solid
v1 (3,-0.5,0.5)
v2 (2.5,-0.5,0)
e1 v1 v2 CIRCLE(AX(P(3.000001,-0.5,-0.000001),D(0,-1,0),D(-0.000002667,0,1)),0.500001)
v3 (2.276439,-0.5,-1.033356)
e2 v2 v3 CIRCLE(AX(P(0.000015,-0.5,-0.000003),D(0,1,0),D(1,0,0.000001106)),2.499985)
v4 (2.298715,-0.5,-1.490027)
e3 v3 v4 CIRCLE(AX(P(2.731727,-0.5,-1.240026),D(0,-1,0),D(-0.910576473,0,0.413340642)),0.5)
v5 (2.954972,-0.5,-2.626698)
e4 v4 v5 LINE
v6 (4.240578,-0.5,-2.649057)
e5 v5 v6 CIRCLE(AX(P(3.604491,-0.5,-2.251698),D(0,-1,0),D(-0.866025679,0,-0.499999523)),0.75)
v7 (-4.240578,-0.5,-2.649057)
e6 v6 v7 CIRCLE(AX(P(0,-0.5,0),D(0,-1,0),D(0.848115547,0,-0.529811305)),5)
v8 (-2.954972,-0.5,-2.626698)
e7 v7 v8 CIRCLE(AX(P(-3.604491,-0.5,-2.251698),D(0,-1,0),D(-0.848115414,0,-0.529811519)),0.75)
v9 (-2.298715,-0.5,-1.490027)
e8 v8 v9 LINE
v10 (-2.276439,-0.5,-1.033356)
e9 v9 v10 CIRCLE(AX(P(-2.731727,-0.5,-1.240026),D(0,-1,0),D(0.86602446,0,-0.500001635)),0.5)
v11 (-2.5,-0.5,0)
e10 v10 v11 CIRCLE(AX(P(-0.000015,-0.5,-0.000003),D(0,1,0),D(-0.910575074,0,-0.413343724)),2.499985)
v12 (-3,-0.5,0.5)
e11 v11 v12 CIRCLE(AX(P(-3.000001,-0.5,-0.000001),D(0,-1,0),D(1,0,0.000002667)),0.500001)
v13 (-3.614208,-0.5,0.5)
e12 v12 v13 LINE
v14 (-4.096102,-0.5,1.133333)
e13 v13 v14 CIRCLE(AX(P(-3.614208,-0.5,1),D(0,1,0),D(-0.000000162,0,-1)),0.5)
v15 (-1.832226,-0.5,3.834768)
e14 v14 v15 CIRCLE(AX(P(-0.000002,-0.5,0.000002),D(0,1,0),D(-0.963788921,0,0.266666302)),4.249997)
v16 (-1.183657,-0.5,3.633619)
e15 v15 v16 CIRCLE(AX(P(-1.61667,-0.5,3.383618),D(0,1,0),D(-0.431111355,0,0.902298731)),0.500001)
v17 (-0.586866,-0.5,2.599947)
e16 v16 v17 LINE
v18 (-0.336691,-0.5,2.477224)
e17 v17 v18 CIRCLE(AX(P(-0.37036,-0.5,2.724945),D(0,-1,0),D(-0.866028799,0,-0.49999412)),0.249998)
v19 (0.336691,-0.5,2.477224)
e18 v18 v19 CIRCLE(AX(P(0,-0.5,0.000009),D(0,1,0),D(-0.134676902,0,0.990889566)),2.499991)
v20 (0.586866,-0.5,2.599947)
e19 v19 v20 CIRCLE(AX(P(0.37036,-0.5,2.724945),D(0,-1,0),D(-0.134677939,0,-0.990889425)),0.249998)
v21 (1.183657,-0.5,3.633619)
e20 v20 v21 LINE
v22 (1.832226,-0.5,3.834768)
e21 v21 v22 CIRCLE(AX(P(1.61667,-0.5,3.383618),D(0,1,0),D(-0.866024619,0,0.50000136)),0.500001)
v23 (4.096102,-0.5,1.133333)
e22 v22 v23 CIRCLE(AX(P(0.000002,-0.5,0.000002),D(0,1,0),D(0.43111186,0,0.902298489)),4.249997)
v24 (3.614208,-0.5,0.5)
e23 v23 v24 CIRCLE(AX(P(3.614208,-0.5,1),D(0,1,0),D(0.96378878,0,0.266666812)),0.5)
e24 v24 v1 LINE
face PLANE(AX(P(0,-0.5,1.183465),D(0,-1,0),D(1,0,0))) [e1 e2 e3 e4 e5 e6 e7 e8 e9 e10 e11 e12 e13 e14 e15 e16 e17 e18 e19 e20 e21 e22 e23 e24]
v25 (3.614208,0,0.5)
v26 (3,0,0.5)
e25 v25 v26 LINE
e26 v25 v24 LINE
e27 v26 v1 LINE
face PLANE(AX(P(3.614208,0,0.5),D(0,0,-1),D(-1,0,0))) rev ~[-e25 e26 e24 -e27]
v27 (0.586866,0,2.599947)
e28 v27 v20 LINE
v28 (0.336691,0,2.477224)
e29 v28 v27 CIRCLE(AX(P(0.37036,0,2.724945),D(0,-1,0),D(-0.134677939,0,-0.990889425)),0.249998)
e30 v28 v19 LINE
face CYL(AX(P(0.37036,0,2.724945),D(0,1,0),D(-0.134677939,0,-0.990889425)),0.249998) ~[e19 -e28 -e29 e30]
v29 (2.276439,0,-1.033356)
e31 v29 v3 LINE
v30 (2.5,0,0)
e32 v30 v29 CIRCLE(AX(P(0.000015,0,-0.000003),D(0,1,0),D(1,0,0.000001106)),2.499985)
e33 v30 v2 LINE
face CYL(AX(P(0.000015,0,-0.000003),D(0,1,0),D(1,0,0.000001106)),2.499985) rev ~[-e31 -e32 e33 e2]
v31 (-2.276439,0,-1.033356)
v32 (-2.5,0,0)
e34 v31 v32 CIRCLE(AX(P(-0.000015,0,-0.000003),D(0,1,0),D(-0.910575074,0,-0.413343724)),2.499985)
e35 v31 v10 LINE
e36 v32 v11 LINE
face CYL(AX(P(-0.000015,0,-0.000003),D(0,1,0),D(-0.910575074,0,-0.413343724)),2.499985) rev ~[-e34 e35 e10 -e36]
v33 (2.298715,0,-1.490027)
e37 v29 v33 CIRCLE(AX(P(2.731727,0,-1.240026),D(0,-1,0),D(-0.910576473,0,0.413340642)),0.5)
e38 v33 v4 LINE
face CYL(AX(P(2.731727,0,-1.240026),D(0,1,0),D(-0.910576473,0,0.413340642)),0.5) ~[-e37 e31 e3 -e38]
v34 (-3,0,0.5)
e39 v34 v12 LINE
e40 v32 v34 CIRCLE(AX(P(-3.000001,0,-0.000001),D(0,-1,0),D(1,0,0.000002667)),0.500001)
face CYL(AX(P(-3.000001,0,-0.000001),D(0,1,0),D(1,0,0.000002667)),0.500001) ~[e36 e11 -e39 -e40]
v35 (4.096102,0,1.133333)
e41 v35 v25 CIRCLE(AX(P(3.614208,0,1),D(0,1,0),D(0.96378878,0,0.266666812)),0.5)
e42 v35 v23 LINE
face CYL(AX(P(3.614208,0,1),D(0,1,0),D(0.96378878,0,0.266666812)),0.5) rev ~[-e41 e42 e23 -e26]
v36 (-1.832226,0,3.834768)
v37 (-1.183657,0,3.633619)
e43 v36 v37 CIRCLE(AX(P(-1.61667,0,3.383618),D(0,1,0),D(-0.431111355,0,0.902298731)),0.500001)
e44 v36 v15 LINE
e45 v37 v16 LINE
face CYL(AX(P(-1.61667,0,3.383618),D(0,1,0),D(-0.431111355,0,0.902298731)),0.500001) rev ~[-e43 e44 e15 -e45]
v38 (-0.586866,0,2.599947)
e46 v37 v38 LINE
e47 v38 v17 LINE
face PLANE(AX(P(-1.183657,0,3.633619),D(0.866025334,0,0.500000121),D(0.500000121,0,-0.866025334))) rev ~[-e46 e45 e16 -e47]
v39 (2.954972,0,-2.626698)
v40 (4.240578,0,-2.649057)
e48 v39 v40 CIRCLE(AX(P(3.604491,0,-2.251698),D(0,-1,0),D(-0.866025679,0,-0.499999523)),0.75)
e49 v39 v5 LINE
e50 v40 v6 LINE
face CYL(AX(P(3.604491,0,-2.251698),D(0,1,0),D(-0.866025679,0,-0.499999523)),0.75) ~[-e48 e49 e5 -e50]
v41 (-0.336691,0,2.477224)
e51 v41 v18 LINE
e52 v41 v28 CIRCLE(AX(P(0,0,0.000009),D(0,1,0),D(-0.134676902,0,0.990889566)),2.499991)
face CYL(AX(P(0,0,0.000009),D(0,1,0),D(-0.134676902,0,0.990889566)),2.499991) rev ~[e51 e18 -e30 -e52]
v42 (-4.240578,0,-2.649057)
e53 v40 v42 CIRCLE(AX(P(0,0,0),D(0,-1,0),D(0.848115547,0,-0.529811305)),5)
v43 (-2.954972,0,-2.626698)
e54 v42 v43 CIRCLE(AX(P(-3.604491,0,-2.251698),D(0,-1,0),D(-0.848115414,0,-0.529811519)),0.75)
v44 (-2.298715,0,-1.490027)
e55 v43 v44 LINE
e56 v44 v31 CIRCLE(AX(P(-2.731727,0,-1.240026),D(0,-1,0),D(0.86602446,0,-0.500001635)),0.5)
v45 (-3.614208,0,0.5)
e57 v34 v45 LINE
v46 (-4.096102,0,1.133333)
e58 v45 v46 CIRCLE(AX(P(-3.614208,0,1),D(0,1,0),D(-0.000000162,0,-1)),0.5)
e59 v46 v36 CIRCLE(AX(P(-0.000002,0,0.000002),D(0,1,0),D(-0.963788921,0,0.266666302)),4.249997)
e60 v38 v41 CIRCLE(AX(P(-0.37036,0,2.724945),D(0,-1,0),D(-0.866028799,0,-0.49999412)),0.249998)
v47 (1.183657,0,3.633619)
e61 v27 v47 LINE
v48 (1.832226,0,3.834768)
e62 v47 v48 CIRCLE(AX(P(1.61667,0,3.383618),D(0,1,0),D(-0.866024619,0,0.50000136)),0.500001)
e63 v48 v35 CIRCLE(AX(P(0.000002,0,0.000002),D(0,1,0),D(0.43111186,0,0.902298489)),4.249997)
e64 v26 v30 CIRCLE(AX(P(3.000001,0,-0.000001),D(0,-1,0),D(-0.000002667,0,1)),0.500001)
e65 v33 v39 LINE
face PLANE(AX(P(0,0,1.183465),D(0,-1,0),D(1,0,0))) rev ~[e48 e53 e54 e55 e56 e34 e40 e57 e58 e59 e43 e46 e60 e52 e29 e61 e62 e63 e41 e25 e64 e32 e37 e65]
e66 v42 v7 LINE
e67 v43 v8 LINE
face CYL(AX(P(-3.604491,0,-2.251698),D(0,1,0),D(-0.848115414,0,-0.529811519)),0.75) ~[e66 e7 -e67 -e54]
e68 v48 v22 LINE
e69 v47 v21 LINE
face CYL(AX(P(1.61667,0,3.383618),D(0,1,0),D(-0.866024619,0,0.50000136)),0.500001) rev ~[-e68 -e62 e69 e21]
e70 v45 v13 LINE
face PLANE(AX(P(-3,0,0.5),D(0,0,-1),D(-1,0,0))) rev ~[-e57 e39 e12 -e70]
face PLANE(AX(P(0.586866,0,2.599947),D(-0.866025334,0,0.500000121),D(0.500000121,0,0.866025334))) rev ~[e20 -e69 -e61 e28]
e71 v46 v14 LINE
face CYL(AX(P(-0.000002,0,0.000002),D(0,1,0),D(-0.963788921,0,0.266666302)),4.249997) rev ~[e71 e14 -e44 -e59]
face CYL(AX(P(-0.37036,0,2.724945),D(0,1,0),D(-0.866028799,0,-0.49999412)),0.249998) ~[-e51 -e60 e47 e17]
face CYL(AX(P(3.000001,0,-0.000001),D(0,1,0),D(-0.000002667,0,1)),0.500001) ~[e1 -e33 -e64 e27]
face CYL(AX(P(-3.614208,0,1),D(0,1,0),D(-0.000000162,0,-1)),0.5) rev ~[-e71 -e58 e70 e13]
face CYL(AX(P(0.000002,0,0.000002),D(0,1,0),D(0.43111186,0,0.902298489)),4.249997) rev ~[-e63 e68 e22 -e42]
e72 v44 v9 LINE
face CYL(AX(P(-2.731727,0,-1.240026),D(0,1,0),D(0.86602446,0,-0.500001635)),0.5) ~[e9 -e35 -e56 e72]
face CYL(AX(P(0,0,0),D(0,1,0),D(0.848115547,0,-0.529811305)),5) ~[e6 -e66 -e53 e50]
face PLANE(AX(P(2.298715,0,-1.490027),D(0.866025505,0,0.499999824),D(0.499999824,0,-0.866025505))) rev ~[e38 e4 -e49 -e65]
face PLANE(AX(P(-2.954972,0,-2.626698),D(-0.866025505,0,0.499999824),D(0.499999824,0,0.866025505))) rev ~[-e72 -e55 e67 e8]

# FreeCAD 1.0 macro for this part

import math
import FreeCAD as App
import Part
import Sketcher

V = App.Vector
Q = App.Units.Quantity

doc = App.newDocument("Part")
params = doc.addObject("Spreadsheet::Sheet", "Params")
for row, (alias, value) in enumerate([
    ("sketch1_radius", "5 mm"),
    ("sketch1_radius2", "0.5 mm"),
    ("sketch1_radius3", "0.75 mm"),
    ("sketch1_radius4", "0.249998 mm"),
    ("pad1_length", "0.5 mm"),
], start=1):
    params.set(f"A{row}", alias)
    params.set(f"B{row}", "=" + value)
    params.setAlias(f"B{row}", alias)

body = doc.addObject("PartDesign::Body", "Body")

# Sketch on XZ plane
sketch1 = body.newObject("Sketcher::SketchObject", "Sketch")
sketch1.AttachmentSupport = (doc.getObject("XZ_Plane"), [""])
sketch1.MapMode = "FlatFace"
sketch1.addGeometry([
    Part.ArcOfCircle(Part.Circle(V(3.6, -2.25, 0), V(0, 0, 1), 0.75), math.radians(-150), math.radians(-32)),  # 0
    Part.ArcOfCircle(Part.Circle(V(0, 0, 0), V(0, 0, 1), 5), math.radians(-32), math.radians(212)),  # 1
    Part.ArcOfCircle(Part.Circle(V(-3.6, -2.25, 0), V(0, 0, 1), 0.75), math.radians(-148), math.radians(-30)),  # 2
    Part.LineSegment(V(-2.95, -2.63, 0), V(-2.3, -1.49, 0)),  # 3
    Part.ArcOfCircle(Part.Circle(V(-2.73, -1.24, 0), V(0, 0, 1), 0.5), math.radians(-30), math.radians(24)),  # 4
    Part.ArcOfCircle(Part.Circle(V(0, 0, 0), V(0, 0, 1), 2.5), math.radians(180), math.radians(204)),  # 5
    Part.ArcOfCircle(Part.Circle(V(-3, 0, 0), V(0, 0, 1), 0.5), math.radians(0), math.radians(90)),  # 6
    Part.LineSegment(V(-3, 0.5, 0), V(-3.61, 0.5, 0)),  # 7
    Part.ArcOfCircle(Part.Circle(V(-3.61, 1, 0), V(0, 0, 1), 0.5), math.radians(165), math.radians(270)),  # 8
    Part.ArcOfCircle(Part.Circle(V(0, 0, 0), V(0, 0, 1), 4.25), math.radians(116), math.radians(165)),  # 9
    Part.ArcOfCircle(Part.Circle(V(-1.62, 3.38, 0), V(0, 0, 1), 0.5), math.radians(30), math.radians(116)),  # 10
    Part.LineSegment(V(-1.18, 3.63, 0), V(-0.59, 2.6, 0)),  # 11
    Part.ArcOfCircle(Part.Circle(V(-0.37, 2.72, 0), V(0, 0, 1), 0.25), math.radians(-150), math.radians(-82)),  # 12
    Part.ArcOfCircle(Part.Circle(V(0, 0, 0), V(0, 0, 1), 2.5), math.radians(82.26), math.radians(97.74)),  # 13
    Part.ArcOfCircle(Part.Circle(V(0.37, 2.72, 0), V(0, 0, 1), 0.25), math.radians(-98), math.radians(-30)),  # 14
    Part.LineSegment(V(0.59, 2.6, 0), V(1.18, 3.63, 0)),  # 15
    Part.ArcOfCircle(Part.Circle(V(1.62, 3.38, 0), V(0, 0, 1), 0.5), math.radians(64), math.radians(150)),  # 16
    Part.ArcOfCircle(Part.Circle(V(0, 0, 0), V(0, 0, 1), 4.25), math.radians(15), math.radians(64)),  # 17
    Part.ArcOfCircle(Part.Circle(V(3.61, 1, 0), V(0, 0, 1), 0.5), math.radians(-90), math.radians(15)),  # 18
    Part.LineSegment(V(3.61, 0.5, 0), V(3, 0.5, 0)),  # 19
    Part.ArcOfCircle(Part.Circle(V(3, 0, 0), V(0, 0, 1), 0.5), math.radians(90), math.radians(180)),  # 20
    Part.ArcOfCircle(Part.Circle(V(0, 0, 0), V(0, 0, 1), 2.5), math.radians(-24), math.radians(0)),  # 21
    Part.ArcOfCircle(Part.Circle(V(2.73, -1.24, 0), V(0, 0, 1), 0.5), math.radians(156), math.radians(210)),  # 22
    Part.LineSegment(V(2.3, -1.49, 0), V(2.95, -2.63, 0)),  # 23
], False)
sketch1.addConstraint([
    Sketcher.Constraint("Tangent", 0, 2, 1, 1),
    Sketcher.Constraint("Tangent", 1, 2, 2, 1),
    Sketcher.Constraint("Tangent", 2, 2, 3, 1),
    Sketcher.Constraint("Coincident", 3, 2, 4, 1),
    Sketcher.Constraint("Coincident", 4, 2, 5, 2),
    Sketcher.Constraint("Coincident", 5, 1, 6, 1),
    Sketcher.Constraint("Coincident", 6, 2, 7, 1),
    Sketcher.Constraint("Tangent", 7, 2, 8, 2),
    Sketcher.Constraint("Tangent", 8, 1, 9, 2),
    Sketcher.Constraint("Tangent", 9, 1, 10, 2),
    Sketcher.Constraint("Tangent", 10, 1, 11, 1),
    Sketcher.Constraint("Coincident", 11, 2, 12, 1),
    Sketcher.Constraint("Tangent", 12, 2, 13, 2),
    Sketcher.Constraint("Tangent", 13, 1, 14, 1),
    Sketcher.Constraint("Coincident", 14, 2, 15, 1),
    Sketcher.Constraint("Tangent", 15, 2, 16, 2),
    Sketcher.Constraint("Tangent", 16, 1, 17, 2),
    Sketcher.Constraint("Tangent", 17, 1, 18, 2),
    Sketcher.Constraint("Tangent", 18, 1, 19, 1),
    Sketcher.Constraint("Coincident", 19, 2, 20, 1),
    Sketcher.Constraint("Coincident", 20, 2, 21, 2),
    Sketcher.Constraint("Coincident", 21, 1, 22, 1),
    Sketcher.Constraint("Coincident", 22, 2, 23, 1),
    Sketcher.Constraint("Tangent", 23, 2, 0, 1),
    Sketcher.Constraint("Horizontal", 7),
    Sketcher.Constraint("Horizontal", 19),
    Sketcher.Constraint("Coincident", 1, 3, -1, 1),
    Sketcher.Constraint("Coincident", 9, 3, -1, 1),
    Sketcher.Constraint("Coincident", 13, 3, -1, 1),
    Sketcher.Constraint("Coincident", 17, 3, -1, 1),
    Sketcher.Constraint("Equal", 0, 2),
    Sketcher.Constraint("Equal", 4, 6),
    Sketcher.Constraint("Equal", 6, 8),
    Sketcher.Constraint("Equal", 8, 10),
    Sketcher.Constraint("Equal", 12, 14),
    Sketcher.Constraint("Equal", 10, 16),
    Sketcher.Constraint("Equal", 9, 17),
    Sketcher.Constraint("Equal", 16, 18),
    Sketcher.Constraint("Equal", 18, 20),
    Sketcher.Constraint("Equal", 5, 21),
    Sketcher.Constraint("Equal", 20, 22),
    Sketcher.Constraint("Symmetric", 6, 3, 20, 3, -1, 1),
    Sketcher.Constraint("Symmetric", 4, 3, 22, 3, -2),
    Sketcher.Constraint("Symmetric", 11, 2, 14, 2, -2),
    Sketcher.Constraint("Symmetric", 6, 2, 19, 2, -2),
    Sketcher.Constraint("PointOnObject", 5, 1, -1),
    Sketcher.Constraint("PointOnObject", 20, 2, -1),
    Sketcher.Constraint("Parallel", 3, 15),
    Sketcher.Constraint("Parallel", 11, 23),
    Sketcher.Constraint("Horizontal", 0, 3, 2, 3),
    Sketcher.Constraint("Horizontal", 5, 3, 6, 3),
    Sketcher.Constraint("Horizontal", 4, 2, 21, 1),
    Sketcher.Constraint("Horizontal", 3, 2, 22, 2),
    Sketcher.Constraint("Vertical", 20, 3, 19, 2),
    Sketcher.Constraint("Radius", 1, 5.0),
    Sketcher.Constraint("Radius", 4, 0.5),
    Sketcher.Constraint("Angle", 3, Q("60.000012 deg")),
    Sketcher.Constraint("Radius", 0, 0.75),
    Sketcher.Constraint("Radius", 12, 0.249998),
    Sketcher.Constraint("DistanceX", 6, 3, -1, 1, 3.000001),
    Sketcher.Constraint("Radius", 13, 2.499991),
    Sketcher.Constraint("DistanceY", 3, 2, 4, 3, 0.250001),
    Sketcher.Constraint("Radius", 5, 2.499985),
    Sketcher.Constraint("Radius", 9, 4.249997),
    Sketcher.Constraint("DistanceY", 0, 3, -1, 1, 2.251698),
    Sketcher.Constraint("Distance", 11, 1.193582),
    Sketcher.Constraint("DistanceX", 10, 3, -1, 1, 1.61667),
    Sketcher.Constraint("DistanceX", 4, 2, -1, 1, 2.276439),
])
sketch1.setExpression("Constraints[54]", "Params.sketch1_radius")
sketch1.setExpression("Constraints[55]", "Params.sketch1_radius2")
sketch1.setExpression("Constraints[57]", "Params.sketch1_radius3")
sketch1.setExpression("Constraints[58]", "Params.sketch1_radius4")
pad1 = body.newObject("PartDesign::Pad", "Pad")
pad1.Profile = sketch1
pad1.setExpression("Length", "Params.pad1_length")

doc.recompute()
